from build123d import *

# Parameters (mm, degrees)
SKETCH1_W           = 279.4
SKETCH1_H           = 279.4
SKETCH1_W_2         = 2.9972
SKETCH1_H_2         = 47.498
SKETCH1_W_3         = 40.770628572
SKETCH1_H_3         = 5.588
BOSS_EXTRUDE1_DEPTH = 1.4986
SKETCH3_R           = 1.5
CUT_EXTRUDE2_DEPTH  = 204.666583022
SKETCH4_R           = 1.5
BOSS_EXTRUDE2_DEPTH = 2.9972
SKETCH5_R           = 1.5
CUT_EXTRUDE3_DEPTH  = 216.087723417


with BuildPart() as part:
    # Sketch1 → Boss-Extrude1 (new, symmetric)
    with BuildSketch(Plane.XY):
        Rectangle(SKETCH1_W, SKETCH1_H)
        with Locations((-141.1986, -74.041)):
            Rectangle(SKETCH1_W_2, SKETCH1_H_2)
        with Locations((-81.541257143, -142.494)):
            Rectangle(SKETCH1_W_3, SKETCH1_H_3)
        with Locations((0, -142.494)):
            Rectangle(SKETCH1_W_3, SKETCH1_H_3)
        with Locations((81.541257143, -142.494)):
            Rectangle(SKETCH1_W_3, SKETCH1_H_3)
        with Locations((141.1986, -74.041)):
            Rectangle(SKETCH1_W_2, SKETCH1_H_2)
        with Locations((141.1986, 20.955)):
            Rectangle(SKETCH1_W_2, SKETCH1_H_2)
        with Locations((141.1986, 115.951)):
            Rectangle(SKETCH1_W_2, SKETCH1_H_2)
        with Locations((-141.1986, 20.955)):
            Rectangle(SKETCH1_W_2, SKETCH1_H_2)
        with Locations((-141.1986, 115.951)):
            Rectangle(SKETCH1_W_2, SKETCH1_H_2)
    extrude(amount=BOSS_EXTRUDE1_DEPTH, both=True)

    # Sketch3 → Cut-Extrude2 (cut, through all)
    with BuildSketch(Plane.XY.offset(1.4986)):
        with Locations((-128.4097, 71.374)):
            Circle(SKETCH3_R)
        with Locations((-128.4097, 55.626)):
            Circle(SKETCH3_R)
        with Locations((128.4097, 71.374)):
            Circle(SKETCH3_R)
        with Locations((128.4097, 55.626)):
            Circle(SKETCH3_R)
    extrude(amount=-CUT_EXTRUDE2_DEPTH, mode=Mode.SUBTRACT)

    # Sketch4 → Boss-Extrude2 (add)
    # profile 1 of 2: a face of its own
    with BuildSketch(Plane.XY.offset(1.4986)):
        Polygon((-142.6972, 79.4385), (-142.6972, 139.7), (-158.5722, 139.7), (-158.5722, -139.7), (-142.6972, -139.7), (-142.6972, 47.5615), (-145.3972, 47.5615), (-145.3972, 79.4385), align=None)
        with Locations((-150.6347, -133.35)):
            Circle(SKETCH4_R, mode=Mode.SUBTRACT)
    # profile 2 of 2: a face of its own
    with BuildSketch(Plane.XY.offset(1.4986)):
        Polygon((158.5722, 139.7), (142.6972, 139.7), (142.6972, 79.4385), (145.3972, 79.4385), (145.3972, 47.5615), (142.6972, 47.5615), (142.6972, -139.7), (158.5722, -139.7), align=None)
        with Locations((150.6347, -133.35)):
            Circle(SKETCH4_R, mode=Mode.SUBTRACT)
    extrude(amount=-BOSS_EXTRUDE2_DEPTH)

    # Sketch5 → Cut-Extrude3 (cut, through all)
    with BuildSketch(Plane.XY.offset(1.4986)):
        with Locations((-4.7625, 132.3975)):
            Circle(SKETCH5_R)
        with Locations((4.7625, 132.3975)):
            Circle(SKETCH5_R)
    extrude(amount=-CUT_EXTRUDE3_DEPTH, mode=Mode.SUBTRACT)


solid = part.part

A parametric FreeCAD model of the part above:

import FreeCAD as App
import Part
import Sketcher
Q = App.Units.Quantity

doc = App.newDocument("Part")
body = doc.addObject("PartDesign::Body", "Body")

# Sketch on XY plane
sketch1 = body.newObject("Sketcher::SketchObject", "Sketch")
sketch1.AttachmentSupport = (doc.getObject("XY_Plane"), [""])
sketch1.MapMode = "FlatFace"
sketch1.addGeometry(Part.LineSegment(App.Vector(-139.7, -97.79, 0), App.Vector(-139.7, -139.7, 0)), False)
sketch1.addGeometry(Part.LineSegment(App.Vector(-139.7, -139.7, 0), App.Vector(-101.926571, -139.7, 0)), False)
sketch1.addGeometry(Part.LineSegment(App.Vector(-101.926571, -139.7, 0), App.Vector(-101.926571, -145.288, 0)), False)
sketch1.addGeometry(Part.LineSegment(App.Vector(-101.926571, -145.288, 0), App.Vector(-61.155943, -145.288, 0)), False)
sketch1.addGeometry(Part.LineSegment(App.Vector(-61.155943, -145.288, 0), App.Vector(-61.155943, -139.7, 0)), False)
sketch1.addGeometry(Part.LineSegment(App.Vector(-61.155943, -139.7, 0), App.Vector(-20.385314, -139.7, 0)), False)
sketch1.addGeometry(Part.LineSegment(App.Vector(-20.385314, -139.7, 0), App.Vector(-20.385314, -145.288, 0)), False)
sketch1.addGeometry(Part.LineSegment(App.Vector(-20.385314, -145.288, 0), App.Vector(20.385314, -145.288, 0)), False)
sketch1.addGeometry(Part.LineSegment(App.Vector(20.385314, -145.288, 0), App.Vector(20.385314, -139.7, 0)), False)
sketch1.addGeometry(Part.LineSegment(App.Vector(20.385314, -139.7, 0), App.Vector(61.155943, -139.7, 0)), False)
sketch1.addGeometry(Part.LineSegment(App.Vector(61.155943, -139.7, 0), App.Vector(61.155943, -145.288, 0)), False)
sketch1.addGeometry(Part.LineSegment(App.Vector(61.155943, -145.288, 0), App.Vector(101.926571, -145.288, 0)), False)
sketch1.addGeometry(Part.LineSegment(App.Vector(101.926571, -145.288, 0), App.Vector(101.926571, -139.7, 0)), False)
sketch1.addGeometry(Part.LineSegment(App.Vector(101.926571, -139.7, 0), App.Vector(139.7, -139.7, 0)), False)
sketch1.addGeometry(Part.LineSegment(App.Vector(139.7, -139.7, 0), App.Vector(139.7, -97.79, 0)), False)
sketch1.addGeometry(Part.LineSegment(App.Vector(139.7, -97.79, 0), App.Vector(142.6972, -97.79, 0)), False)
sketch1.addGeometry(Part.LineSegment(App.Vector(142.6972, -97.79, 0), App.Vector(142.6972, -50.292, 0)), False)
sketch1.addGeometry(Part.LineSegment(App.Vector(142.6972, -50.292, 0), App.Vector(139.7, -50.292, 0)), False)
sketch1.addGeometry(Part.LineSegment(App.Vector(139.7, -50.292, 0), App.Vector(139.7, -2.794, 0)), False)
sketch1.addGeometry(Part.LineSegment(App.Vector(139.7, -2.794, 0), App.Vector(142.6972, -2.794, 0)), False)
sketch1.addGeometry(Part.LineSegment(App.Vector(142.6972, -2.794, 0), App.Vector(142.6972, 44.704, 0)), False)
sketch1.addGeometry(Part.LineSegment(App.Vector(142.6972, 44.704, 0), App.Vector(139.7, 44.704, 0)), False)
sketch1.addGeometry(Part.LineSegment(App.Vector(139.7, 44.704, 0), App.Vector(139.7, 92.202, 0)), False)
sketch1.addGeometry(Part.LineSegment(App.Vector(139.7, 92.202, 0), App.Vector(142.6972, 92.202, 0)), False)
sketch1.addGeometry(Part.LineSegment(App.Vector(142.6972, 92.202, 0), App.Vector(142.6972, 139.7, 0)), False)
sketch1.addGeometry(Part.LineSegment(App.Vector(142.6972, 139.7, 0), App.Vector(-142.6972, 139.7, 0)), False)
sketch1.addGeometry(Part.LineSegment(App.Vector(-142.6972, 139.7, 0), App.Vector(-142.6972, 92.202, 0)), False)
sketch1.addGeometry(Part.LineSegment(App.Vector(-142.6972, 92.202, 0), App.Vector(-139.7, 92.202, 0)), False)
sketch1.addGeometry(Part.LineSegment(App.Vector(-139.7, 92.202, 0), App.Vector(-139.7, 44.704, 0)), False)
sketch1.addGeometry(Part.LineSegment(App.Vector(-139.7, 44.704, 0), App.Vector(-142.6972, 44.704, 0)), False)
sketch1.addGeometry(Part.LineSegment(App.Vector(-142.6972, 44.704, 0), App.Vector(-142.6972, -2.794, 0)), False)
sketch1.addGeometry(Part.LineSegment(App.Vector(-142.6972, -2.794, 0), App.Vector(-139.7, -2.794, 0)), False)
sketch1.addGeometry(Part.LineSegment(App.Vector(-139.7, -2.794, 0), App.Vector(-139.7, -50.292, 0)), False)
sketch1.addGeometry(Part.LineSegment(App.Vector(-139.7, -50.292, 0), App.Vector(-142.6972, -50.292, 0)), False)
sketch1.addGeometry(Part.LineSegment(App.Vector(-142.6972, -50.292, 0), App.Vector(-142.6972, -97.79, 0)), False)
sketch1.addGeometry(Part.LineSegment(App.Vector(-142.6972, -97.79, 0), App.Vector(-139.7, -97.79, 0)), False)
sketch1.addConstraint(Sketcher.Constraint("Coincident", 0, 2, 1, 1))
sketch1.addConstraint(Sketcher.Constraint("Coincident", 1, 2, 2, 1))
sketch1.addConstraint(Sketcher.Constraint("Coincident", 2, 2, 3, 1))
sketch1.addConstraint(Sketcher.Constraint("Coincident", 3, 2, 4, 1))
sketch1.addConstraint(Sketcher.Constraint("Coincident", 4, 2, 5, 1))
sketch1.addConstraint(Sketcher.Constraint("Coincident", 5, 2, 6, 1))
sketch1.addConstraint(Sketcher.Constraint("Coincident", 6, 2, 7, 1))
sketch1.addConstraint(Sketcher.Constraint("Coincident", 7, 2, 8, 1))
sketch1.addConstraint(Sketcher.Constraint("Coincident", 8, 2, 9, 1))
sketch1.addConstraint(Sketcher.Constraint("Coincident", 9, 2, 10, 1))
sketch1.addConstraint(Sketcher.Constraint("Coincident", 10, 2, 11, 1))
sketch1.addConstraint(Sketcher.Constraint("Coincident", 11, 2, 12, 1))
sketch1.addConstraint(Sketcher.Constraint("Coincident", 12, 2, 13, 1))
sketch1.addConstraint(Sketcher.Constraint("Coincident", 13, 2, 14, 1))
sketch1.addConstraint(Sketcher.Constraint("Coincident", 14, 2, 15, 1))
sketch1.addConstraint(Sketcher.Constraint("Coincident", 15, 2, 16, 1))
sketch1.addConstraint(Sketcher.Constraint("Coincident", 16, 2, 17, 1))
sketch1.addConstraint(Sketcher.Constraint("Coincident", 17, 2, 18, 1))
sketch1.addConstraint(Sketcher.Constraint("Coincident", 18, 2, 19, 1))
sketch1.addConstraint(Sketcher.Constraint("Coincident", 19, 2, 20, 1))
sketch1.addConstraint(Sketcher.Constraint("Coincident", 20, 2, 21, 1))
sketch1.addConstraint(Sketcher.Constraint("Coincident", 21, 2, 22, 1))
sketch1.addConstraint(Sketcher.Constraint("Coincident", 22, 2, 23, 1))
sketch1.addConstraint(Sketcher.Constraint("Coincident", 23, 2, 24, 1))
sketch1.addConstraint(Sketcher.Constraint("Coincident", 24, 2, 25, 1))
sketch1.addConstraint(Sketcher.Constraint("Coincident", 25, 2, 26, 1))
sketch1.addConstraint(Sketcher.Constraint("Coincident", 26, 2, 27, 1))
sketch1.addConstraint(Sketcher.Constraint("Coincident", 27, 2, 28, 1))
sketch1.addConstraint(Sketcher.Constraint("Coincident", 28, 2, 29, 1))
sketch1.addConstraint(Sketcher.Constraint("Coincident", 29, 2, 30, 1))
sketch1.addConstraint(Sketcher.Constraint("Coincident", 30, 2, 31, 1))
sketch1.addConstraint(Sketcher.Constraint("Coincident", 31, 2, 32, 1))
sketch1.addConstraint(Sketcher.Constraint("Coincident", 32, 2, 33, 1))
sketch1.addConstraint(Sketcher.Constraint("Coincident", 33, 2, 34, 1))
sketch1.addConstraint(Sketcher.Constraint("Coincident", 34, 2, 35, 1))
sketch1.addConstraint(Sketcher.Constraint("Coincident", 35, 2, 0, 1))
sketch1.addConstraint(Sketcher.Constraint("Vertical", 0))
sketch1.addConstraint(Sketcher.Constraint("Horizontal", 1))
sketch1.addConstraint(Sketcher.Constraint("Vertical", 2))
sketch1.addConstraint(Sketcher.Constraint("Horizontal", 3))
sketch1.addConstraint(Sketcher.Constraint("Vertical", 4))
sketch1.addConstraint(Sketcher.Constraint("Horizontal", 5))
sketch1.addConstraint(Sketcher.Constraint("Vertical", 6))
sketch1.addConstraint(Sketcher.Constraint("Horizontal", 7))
sketch1.addConstraint(Sketcher.Constraint("Vertical", 8))
sketch1.addConstraint(Sketcher.Constraint("Horizontal", 9))
sketch1.addConstraint(Sketcher.Constraint("Vertical", 10))
sketch1.addConstraint(Sketcher.Constraint("Horizontal", 11))
sketch1.addConstraint(Sketcher.Constraint("Vertical", 12))
sketch1.addConstraint(Sketcher.Constraint("Horizontal", 13))
sketch1.addConstraint(Sketcher.Constraint("Vertical", 14))
sketch1.addConstraint(Sketcher.Constraint("Horizontal", 15))
sketch1.addConstraint(Sketcher.Constraint("Vertical", 16))
sketch1.addConstraint(Sketcher.Constraint("Horizontal", 17))
sketch1.addConstraint(Sketcher.Constraint("Vertical", 18))
sketch1.addConstraint(Sketcher.Constraint("Horizontal", 19))
sketch1.addConstraint(Sketcher.Constraint("Vertical", 20))
sketch1.addConstraint(Sketcher.Constraint("Horizontal", 21))
sketch1.addConstraint(Sketcher.Constraint("Vertical", 22))
sketch1.addConstraint(Sketcher.Constraint("Horizontal", 23))
sketch1.addConstraint(Sketcher.Constraint("Vertical", 24))
sketch1.addConstraint(Sketcher.Constraint("Horizontal", 25))
sketch1.addConstraint(Sketcher.Constraint("Vertical", 26))
sketch1.addConstraint(Sketcher.Constraint("Horizontal", 27))
sketch1.addConstraint(Sketcher.Constraint("Vertical", 28))
sketch1.addConstraint(Sketcher.Constraint("Horizontal", 29))
sketch1.addConstraint(Sketcher.Constraint("Vertical", 30))
sketch1.addConstraint(Sketcher.Constraint("Horizontal", 31))
sketch1.addConstraint(Sketcher.Constraint("Vertical", 32))
sketch1.addConstraint(Sketcher.Constraint("Horizontal", 33))
sketch1.addConstraint(Sketcher.Constraint("Vertical", 34))
sketch1.addConstraint(Sketcher.Constraint("Horizontal", 35))
sketch1.addConstraint(Sketcher.Constraint("Symmetric", 5, 2, 8, 2, -2))
sketch1.addConstraint(Sketcher.Constraint("Symmetric", 3, 2, 10, 2, -2))
sketch1.addConstraint(Sketcher.Constraint("Symmetric", 1, 2, 12, 2, -2))
sketch1.addConstraint(Sketcher.Constraint("Symmetric", 23, 2, 26, 2, -2))
sketch1.addConstraint(Sketcher.Constraint("Symmetric", 21, 2, 28, 2, -2))
sketch1.addConstraint(Sketcher.Constraint("Symmetric", 19, 2, 30, 2, -2))
sketch1.addConstraint(Sketcher.Constraint("Symmetric", 17, 2, 32, 2, -2))
sketch1.addConstraint(Sketcher.Constraint("Symmetric", 15, 2, 34, 2, -2))
sketch1.addConstraint(Sketcher.Constraint("Horizontal", 1, 2, 4, 2))
sketch1.addConstraint(Sketcher.Constraint("Horizontal", 3, 2, 6, 2))
sketch1.addConstraint(Sketcher.Constraint("Vertical", 14, 2, 17, 2))
sketch1.addConstraint(Sketcher.Constraint("Vertical", 16, 2, 19, 2))
sketch1.addConstraint(Sketcher.Constraint("Vertical", 18, 2, 21, 2))
sketch1.addConstraint(Sketcher.Constraint("Vertical", 20, 2, 23, 2))
sketch1.addConstraint(Sketcher.Constraint("Vertical", 0, 2, 27, 2))
sketch1.addConstraint(Sketcher.Constraint("Equal", 3, 5))
sketch1.addConstraint(Sketcher.Constraint("Equal", 5, 7))
sketch1.addConstraint(Sketcher.Constraint("Equal", 16, 18))
sketch1.addConstraint(Sketcher.Constraint("Equal", 18, 20))
sketch1.addConstraint(Sketcher.Constraint("Equal", 20, 22))
sketch1.addConstraint(Sketcher.Constraint("Equal", 22, 24))
sketch1.addConstraint(Sketcher.Constraint("DistanceY", 0, 2, 25, 2, Q("11 in")))
sketch1.addConstraint(Sketcher.Constraint("DistanceY", 0, 2, 0, 1, Q("1.65 in")))
sketch1.addConstraint(Sketcher.Constraint("DistanceY", 2, 2, 2, 1, Q("0.22 in")))
sketch1.addConstraint(Sketcher.Constraint("DistanceX", 0, 2, -1, 1, Q("5.5 in")))
sketch1.addConstraint(Sketcher.Constraint("DistanceY", 0, 2, -1, 1, Q("5.5 in")))
sketch1.addConstraint(Sketcher.Constraint("DistanceX", 15, 1, 15, 2, Q("0.118 in")))
sketch1.addConstraint(Sketcher.Constraint("DistanceX", 1, 1, 1, 2, 37.773429))
pad1 = body.newObject("PartDesign::Pad", "Pad")
pad1.Profile = sketch1
pad1.Length = Q("0.118 in")
pad1.Midplane = True

# Sketch on XY plane
sketch2 = body.newObject("Sketcher::SketchObject", "Sketch001")
sketch2.AttachmentSupport = (doc.getObject("XY_Plane"), [""])
sketch2.MapMode = "FlatFace"
sketch2.AttachmentOffset = App.Placement(App.Vector(0, 0, 0.059 * 25.4), App.Rotation())
sketch2.addGeometry(Part.Circle(App.Vector(-128.4097, 71.374, 0), App.Vector(0, 0, 1), 1.5), False)
sketch2.addGeometry(Part.Circle(App.Vector(-128.4097, 55.626, 0), App.Vector(0, 0, 1), 1.5), False)
sketch2.addGeometry(Part.Circle(App.Vector(128.4097, 71.374, 0), App.Vector(0, 0, 1), 1.5), False)
sketch2.addGeometry(Part.Circle(App.Vector(128.4097, 55.626, 0), App.Vector(0, 0, 1), 1.5), False)
sketch2.addConstraint(Sketcher.Constraint("Equal", 0, 1))
sketch2.addConstraint(Sketcher.Constraint("Equal", 1, 2))
sketch2.addConstraint(Sketcher.Constraint("Equal", 2, 3))
sketch2.addConstraint(Sketcher.Constraint("Symmetric", 0, 3, 2, 3, -2))
sketch2.addConstraint(Sketcher.Constraint("Symmetric", 1, 3, 3, 3, -2))
sketch2.addConstraint(Sketcher.Constraint("Vertical", 0, 3, 1, 3))
sketch2.addConstraint(Sketcher.Constraint("Diameter", 0, 3.0))
sketch2.addConstraint(Sketcher.Constraint("DistanceY", -1, 1, 0, 3, Q("2.81 in")))
sketch2.addConstraint(Sketcher.Constraint("DistanceY", -1, 1, 1, 3, Q("2.19 in")))
sketch2.addConstraint(Sketcher.Constraint("DistanceX", 0, 3, 2, 3, Q("10.111 in")))
pocket1 = body.newObject("PartDesign::Pocket", "Pocket")
pocket1.Profile = sketch2
pocket1.Type = "ThroughAll"

# Sketch on XY plane
sketch3 = body.newObject("Sketcher::SketchObject", "Sketch002")
sketch3.AttachmentSupport = (doc.getObject("XY_Plane"), [""])
sketch3.MapMode = "FlatFace"
sketch3.AttachmentOffset = App.Placement(App.Vector(0, 0, 0.059 * 25.4), App.Rotation())
sketch3.addGeometry(Part.LineSegment(App.Vector(-142.6972, 79.4385, 0), App.Vector(-142.6972, 139.7, 0)), False)
sketch3.addGeometry(Part.LineSegment(App.Vector(-142.6972, 139.7, 0), App.Vector(-158.5722, 139.7, 0)), False)
sketch3.addGeometry(Part.LineSegment(App.Vector(-158.5722, 139.7, 0), App.Vector(-158.5722, -139.7, 0)), False)
sketch3.addGeometry(Part.LineSegment(App.Vector(-158.5722, -139.7, 0), App.Vector(-142.6972, -139.7, 0)), False)
sketch3.addGeometry(Part.LineSegment(App.Vector(-142.6972, -139.7, 0), App.Vector(-142.6972, 47.5615, 0)), False)
sketch3.addGeometry(Part.LineSegment(App.Vector(-142.6972, 47.5615, 0), App.Vector(-145.3972, 47.5615, 0)), False)
sketch3.addGeometry(Part.LineSegment(App.Vector(-145.3972, 47.5615, 0), App.Vector(-145.3972, 79.4385, 0)), False)
sketch3.addGeometry(Part.LineSegment(App.Vector(-145.3972, 79.4385, 0), App.Vector(-142.6972, 79.4385, 0)), False)
sketch3.addGeometry(Part.Circle(App.Vector(-150.6347, -133.35, 0), App.Vector(0, 0, 1), 1.5), False)
sketch3.addGeometry(Part.LineSegment(App.Vector(158.5722, 139.7, 0), App.Vector(142.6972, 139.7, 0)), False)
sketch3.addGeometry(Part.LineSegment(App.Vector(142.6972, 139.7, 0), App.Vector(142.6972, 79.4385, 0)), False)
sketch3.addGeometry(Part.LineSegment(App.Vector(142.6972, 79.4385, 0), App.Vector(145.3972, 79.4385, 0)), False)
sketch3.addGeometry(Part.LineSegment(App.Vector(145.3972, 79.4385, 0), App.Vector(145.3972, 47.5615, 0)), False)
sketch3.addGeometry(Part.LineSegment(App.Vector(145.3972, 47.5615, 0), App.Vector(142.6972, 47.5615, 0)), False)
sketch3.addGeometry(Part.LineSegment(App.Vector(142.6972, 47.5615, 0), App.Vector(142.6972, -139.7, 0)), False)
sketch3.addGeometry(Part.LineSegment(App.Vector(142.6972, -139.7, 0), App.Vector(158.5722, -139.7, 0)), False)
sketch3.addGeometry(Part.LineSegment(App.Vector(158.5722, -139.7, 0), App.Vector(158.5722, 139.7, 0)), False)
sketch3.addGeometry(Part.Circle(App.Vector(150.6347, -133.35, 0), App.Vector(0, 0, 1), 1.5), False)
sketch3.addConstraint(Sketcher.Constraint("Coincident", 0, 2, 1, 1))
sketch3.addConstraint(Sketcher.Constraint("Coincident", 1, 2, 2, 1))
sketch3.addConstraint(Sketcher.Constraint("Coincident", 2, 2, 3, 1))
sketch3.addConstraint(Sketcher.Constraint("Coincident", 3, 2, 4, 1))
sketch3.addConstraint(Sketcher.Constraint("Coincident", 4, 2, 5, 1))
sketch3.addConstraint(Sketcher.Constraint("Coincident", 5, 2, 6, 1))
sketch3.addConstraint(Sketcher.Constraint("Coincident", 6, 2, 7, 1))
sketch3.addConstraint(Sketcher.Constraint("Coincident", 7, 2, 0, 1))
sketch3.addConstraint(Sketcher.Constraint("Coincident", 9, 2, 10, 1))
sketch3.addConstraint(Sketcher.Constraint("Coincident", 10, 2, 11, 1))
sketch3.addConstraint(Sketcher.Constraint("Coincident", 11, 2, 12, 1))
sketch3.addConstraint(Sketcher.Constraint("Coincident", 12, 2, 13, 1))
sketch3.addConstraint(Sketcher.Constraint("Coincident", 13, 2, 14, 1))
sketch3.addConstraint(Sketcher.Constraint("Coincident", 14, 2, 15, 1))
sketch3.addConstraint(Sketcher.Constraint("Coincident", 15, 2, 16, 1))
sketch3.addConstraint(Sketcher.Constraint("Coincident", 16, 2, 9, 1))
sketch3.addConstraint(Sketcher.Constraint("Vertical", 0))
sketch3.addConstraint(Sketcher.Constraint("Horizontal", 1))
sketch3.addConstraint(Sketcher.Constraint("Vertical", 2))
sketch3.addConstraint(Sketcher.Constraint("Horizontal", 3))
sketch3.addConstraint(Sketcher.Constraint("Vertical", 4))
sketch3.addConstraint(Sketcher.Constraint("Horizontal", 5))
sketch3.addConstraint(Sketcher.Constraint("Vertical", 6))
sketch3.addConstraint(Sketcher.Constraint("Horizontal", 7))
sketch3.addConstraint(Sketcher.Constraint("Horizontal", 9))
sketch3.addConstraint(Sketcher.Constraint("Vertical", 10))
sketch3.addConstraint(Sketcher.Constraint("Horizontal", 11))
sketch3.addConstraint(Sketcher.Constraint("Vertical", 12))
sketch3.addConstraint(Sketcher.Constraint("Horizontal", 13))
sketch3.addConstraint(Sketcher.Constraint("Vertical", 14))
sketch3.addConstraint(Sketcher.Constraint("Horizontal", 15))
sketch3.addConstraint(Sketcher.Constraint("Vertical", 16))
sketch3.addConstraint(Sketcher.Constraint("Equal", 8, 17))
sketch3.addConstraint(Sketcher.Constraint("Symmetric", 3, 2, 9, 2, -1, 1))
sketch3.addConstraint(Sketcher.Constraint("Symmetric", 0, 2, 14, 2, -1, 1))
sketch3.addConstraint(Sketcher.Constraint("Symmetric", 8, 3, 17, 3, -2))
sketch3.addConstraint(Sketcher.Constraint("Symmetric", 0, 2, 9, 2, -2))
sketch3.addConstraint(Sketcher.Constraint("Symmetric", 6, 2, 11, 2, -2))
sketch3.addConstraint(Sketcher.Constraint("Horizontal", 5, 2, 12, 2))
sketch3.addConstraint(Sketcher.Constraint("Equal", 3, 9))
sketch3.addConstraint(Sketcher.Constraint("DistanceY", 2, 2, 2, 1, Q("11 in")))
sketch3.addConstraint(Sketcher.Constraint("Diameter", 8, 3.0))
sketch3.addConstraint(Sketcher.Constraint("DistanceX", 1, 2, 1, 1, Q("0.625 in")))
sketch3.addConstraint(Sketcher.Constraint("DistanceY", 6, 1, 6, 2, Q("1.255 in")))
sketch3.addConstraint(Sketcher.Constraint("DistanceY", 8, 3, -1, 1, Q("5.25 in")))
sketch3.addConstraint(Sketcher.Constraint("DistanceY", 0, 1, 0, 2, Q("2.3725 in")))
sketch3.addConstraint(Sketcher.Constraint("DistanceX", 0, 2, -1, 1, Q("5.618 in")))
sketch3.addConstraint(Sketcher.Constraint("DistanceX", 8, 3, 17, 3, Q("11.861 in")))
sketch3.addConstraint(Sketcher.Constraint("DistanceX", 5, 2, 5, 1, 2.7))
pad2 = body.newObject("PartDesign::Pad", "Pad001")
pad2.Profile = sketch3
pad2.Length = Q("0.118 in")
pad2.Reversed = True

# Sketch on XY plane
sketch4 = body.newObject("Sketcher::SketchObject", "Sketch003")
sketch4.AttachmentSupport = (doc.getObject("XY_Plane"), [""])
sketch4.MapMode = "FlatFace"
sketch4.AttachmentOffset = App.Placement(App.Vector(0, 0, 0.059 * 25.4), App.Rotation())
sketch4.addGeometry(Part.Circle(App.Vector(-4.7625, 132.3975, 0), App.Vector(0, 0, 1), 1.5), False)
sketch4.addGeometry(Part.Circle(App.Vector(4.7625, 132.3975, 0), App.Vector(0, 0, 1), 1.5), False)
sketch4.addConstraint(Sketcher.Constraint("Equal", 0, 1))
sketch4.addConstraint(Sketcher.Constraint("Symmetric", 0, 3, 1, 3, -2))
sketch4.addConstraint(Sketcher.Constraint("Diameter", 0, 3.0))
sketch4.addConstraint(Sketcher.Constraint("DistanceX", 0, 3, -1, 1, Q("0.1875 in")))
sketch4.addConstraint(Sketcher.Constraint("DistanceY", -1, 1, 0, 3, Q("5.2125 in")))
pocket2 = body.newObject("PartDesign::Pocket", "Pocket001")
pocket2.Profile = sketch4
pocket2.Type = "ThroughAll"

doc.recompute()
